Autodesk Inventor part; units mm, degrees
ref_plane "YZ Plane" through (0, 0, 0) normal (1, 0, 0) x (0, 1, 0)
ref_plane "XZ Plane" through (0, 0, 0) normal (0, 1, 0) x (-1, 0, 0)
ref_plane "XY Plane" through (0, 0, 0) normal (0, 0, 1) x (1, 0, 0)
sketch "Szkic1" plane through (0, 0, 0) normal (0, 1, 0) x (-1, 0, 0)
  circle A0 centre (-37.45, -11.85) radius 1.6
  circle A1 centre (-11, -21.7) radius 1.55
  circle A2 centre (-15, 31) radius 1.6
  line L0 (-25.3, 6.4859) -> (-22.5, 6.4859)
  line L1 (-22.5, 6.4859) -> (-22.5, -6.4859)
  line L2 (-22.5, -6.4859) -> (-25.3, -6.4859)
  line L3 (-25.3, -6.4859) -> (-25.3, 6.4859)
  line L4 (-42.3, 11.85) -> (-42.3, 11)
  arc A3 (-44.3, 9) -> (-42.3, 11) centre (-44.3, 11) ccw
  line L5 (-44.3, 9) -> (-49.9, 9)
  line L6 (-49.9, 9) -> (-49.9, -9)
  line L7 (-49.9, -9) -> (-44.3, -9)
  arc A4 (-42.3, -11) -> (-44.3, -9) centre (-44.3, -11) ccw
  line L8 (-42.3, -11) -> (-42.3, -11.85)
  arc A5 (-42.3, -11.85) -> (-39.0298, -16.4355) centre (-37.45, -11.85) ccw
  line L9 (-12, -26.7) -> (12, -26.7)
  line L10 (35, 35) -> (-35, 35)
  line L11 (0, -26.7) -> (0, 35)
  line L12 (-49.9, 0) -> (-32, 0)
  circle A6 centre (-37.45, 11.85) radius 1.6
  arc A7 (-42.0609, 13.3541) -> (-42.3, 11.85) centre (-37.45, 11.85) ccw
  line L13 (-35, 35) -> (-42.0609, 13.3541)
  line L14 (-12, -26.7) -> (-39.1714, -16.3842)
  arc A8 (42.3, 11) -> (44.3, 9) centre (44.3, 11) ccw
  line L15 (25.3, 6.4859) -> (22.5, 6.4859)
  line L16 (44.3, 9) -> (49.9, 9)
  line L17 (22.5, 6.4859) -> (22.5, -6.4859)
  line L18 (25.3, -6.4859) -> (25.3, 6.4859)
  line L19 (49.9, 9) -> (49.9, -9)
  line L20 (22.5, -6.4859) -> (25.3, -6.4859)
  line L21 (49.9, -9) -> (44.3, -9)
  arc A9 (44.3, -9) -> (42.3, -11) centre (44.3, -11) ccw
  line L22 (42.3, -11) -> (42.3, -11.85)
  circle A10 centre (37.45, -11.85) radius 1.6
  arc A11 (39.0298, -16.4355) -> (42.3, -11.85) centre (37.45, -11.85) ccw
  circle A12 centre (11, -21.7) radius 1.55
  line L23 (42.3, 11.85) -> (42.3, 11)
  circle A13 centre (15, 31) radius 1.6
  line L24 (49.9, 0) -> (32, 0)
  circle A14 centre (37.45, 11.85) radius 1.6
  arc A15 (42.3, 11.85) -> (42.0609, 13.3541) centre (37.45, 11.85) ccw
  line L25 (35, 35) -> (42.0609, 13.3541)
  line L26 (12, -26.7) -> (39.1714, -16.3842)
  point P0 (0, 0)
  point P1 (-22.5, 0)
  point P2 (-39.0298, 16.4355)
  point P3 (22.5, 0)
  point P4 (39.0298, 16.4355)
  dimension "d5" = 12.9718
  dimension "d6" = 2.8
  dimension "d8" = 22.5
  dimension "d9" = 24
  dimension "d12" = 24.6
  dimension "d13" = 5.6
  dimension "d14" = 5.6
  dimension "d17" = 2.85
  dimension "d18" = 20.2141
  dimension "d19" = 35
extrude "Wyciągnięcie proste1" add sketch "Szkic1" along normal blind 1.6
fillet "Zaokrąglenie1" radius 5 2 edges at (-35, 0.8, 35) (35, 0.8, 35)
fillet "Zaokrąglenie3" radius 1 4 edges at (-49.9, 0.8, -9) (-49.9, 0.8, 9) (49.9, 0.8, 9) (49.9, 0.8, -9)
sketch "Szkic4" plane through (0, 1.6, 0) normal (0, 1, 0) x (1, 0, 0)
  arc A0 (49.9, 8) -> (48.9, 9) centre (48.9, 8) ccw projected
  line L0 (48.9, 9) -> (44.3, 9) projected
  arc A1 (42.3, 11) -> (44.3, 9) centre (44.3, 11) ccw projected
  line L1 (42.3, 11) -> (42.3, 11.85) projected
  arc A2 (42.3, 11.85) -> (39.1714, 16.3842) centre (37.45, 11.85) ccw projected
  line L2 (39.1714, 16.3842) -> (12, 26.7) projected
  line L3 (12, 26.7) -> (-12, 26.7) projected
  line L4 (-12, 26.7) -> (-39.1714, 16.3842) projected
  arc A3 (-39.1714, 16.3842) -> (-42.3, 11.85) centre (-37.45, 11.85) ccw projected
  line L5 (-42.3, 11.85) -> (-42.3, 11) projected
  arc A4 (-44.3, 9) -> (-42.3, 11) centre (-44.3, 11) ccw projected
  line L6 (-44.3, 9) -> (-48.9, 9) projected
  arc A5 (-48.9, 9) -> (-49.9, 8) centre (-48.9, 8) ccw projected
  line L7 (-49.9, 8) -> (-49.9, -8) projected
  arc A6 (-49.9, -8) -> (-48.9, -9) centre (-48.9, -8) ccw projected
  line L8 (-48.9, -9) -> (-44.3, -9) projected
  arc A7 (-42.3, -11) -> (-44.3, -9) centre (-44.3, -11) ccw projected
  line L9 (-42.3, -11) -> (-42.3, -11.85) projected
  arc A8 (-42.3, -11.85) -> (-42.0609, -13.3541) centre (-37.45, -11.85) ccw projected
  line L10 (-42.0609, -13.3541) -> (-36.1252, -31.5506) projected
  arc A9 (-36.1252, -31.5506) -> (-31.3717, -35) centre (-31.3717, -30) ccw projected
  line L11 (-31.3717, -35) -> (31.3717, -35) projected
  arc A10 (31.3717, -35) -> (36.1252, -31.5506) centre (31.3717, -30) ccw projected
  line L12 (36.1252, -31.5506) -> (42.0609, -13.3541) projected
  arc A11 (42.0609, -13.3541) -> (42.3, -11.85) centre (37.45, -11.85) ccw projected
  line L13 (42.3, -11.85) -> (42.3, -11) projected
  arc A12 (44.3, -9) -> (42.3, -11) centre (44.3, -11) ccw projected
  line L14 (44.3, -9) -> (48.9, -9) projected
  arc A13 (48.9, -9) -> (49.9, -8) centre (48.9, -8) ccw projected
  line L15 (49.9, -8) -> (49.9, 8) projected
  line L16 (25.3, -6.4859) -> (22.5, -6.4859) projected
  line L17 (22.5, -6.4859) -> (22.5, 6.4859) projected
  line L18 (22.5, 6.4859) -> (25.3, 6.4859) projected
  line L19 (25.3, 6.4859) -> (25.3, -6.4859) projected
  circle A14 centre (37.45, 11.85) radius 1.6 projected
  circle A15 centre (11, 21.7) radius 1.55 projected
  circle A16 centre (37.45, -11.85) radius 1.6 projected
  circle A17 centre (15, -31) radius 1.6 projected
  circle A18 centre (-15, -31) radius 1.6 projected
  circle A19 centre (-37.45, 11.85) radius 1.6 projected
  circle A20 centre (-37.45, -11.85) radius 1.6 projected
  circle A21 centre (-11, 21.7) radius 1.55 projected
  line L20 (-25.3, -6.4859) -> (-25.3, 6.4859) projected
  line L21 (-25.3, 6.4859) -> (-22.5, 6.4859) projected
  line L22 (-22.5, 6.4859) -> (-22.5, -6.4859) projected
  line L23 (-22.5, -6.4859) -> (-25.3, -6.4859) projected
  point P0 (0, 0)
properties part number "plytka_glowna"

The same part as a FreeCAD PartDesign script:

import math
import FreeCAD as App
import Part
import Sketcher

V = App.Vector
Q = App.Units.Quantity


def edges_at(feature, points):
    """Names of the edges that pass closest to the given points."""
    edges = feature.Shape.Edges
    near = lambda p: min(range(len(edges)), key=lambda i: edges[i].distToShape(Part.Vertex(*p))[0])
    return sorted({f"Edge{near(p) + 1}" for p in points})


def add_polygon(sketch, points):
    """Adds a closed chain of lines whose ends are joined by coincident constraints."""
    first, n = sketch.GeometryCount, len(points)
    for a, b in zip(points, points[1:] + points[:1]):
        sketch.addGeometry(Part.LineSegment(App.Vector(*a, 0), App.Vector(*b, 0)), False)
    for i in range(n):
        sketch.addConstraint(Sketcher.Constraint("Coincident", first + i, 2, first + (i + 1) % n, 1))

doc = App.newDocument("Part")
body = doc.addObject("PartDesign::Body", "Body")

sketch1 = doc.addObject("Sketcher::SketchObject", "Sketch")
body.addObject(sketch1)
sketch1.AttachmentSupport = (doc.XZ_Plane, [""])
sketch1.MapMode = "FlatFace"
sketch1.addGeometry(Part.ArcOfCircle(Part.Circle(V(37.45, 11.85, 0), V(0, 0, 1), 4.850022), math.radians(0), math.radians(18.0666)), False)
sketch1.addGeometry(Part.LineSegment(V(42.3, 11.85, 0), V(42.3, 11, 0)), False)
sketch1.addGeometry(Part.ArcOfCircle(Part.Circle(V(44.3, 11, 0), V(0, 0, 1), 2), math.radians(180), math.radians(270)), False)
sketch1.addGeometry(Part.LineSegment(V(44.3, 9, 0), V(49.9, 9, 0)), False)
sketch1.addGeometry(Part.LineSegment(V(49.9, 9, 0), V(49.9, -9, 0)), False)
sketch1.addGeometry(Part.LineSegment(V(49.9, -9, 0), V(44.3, -9, 0)), False)
sketch1.addGeometry(Part.ArcOfCircle(Part.Circle(V(44.3, -11, 0), V(0, 0, 1), 2), math.radians(90), math.radians(180)), False)
sketch1.addGeometry(Part.LineSegment(V(42.3, -11, 0), V(42.3, -11.85, 0)), False)
sketch1.addGeometry(Part.ArcOfCircle(Part.Circle(V(37.45, -11.85, 0), V(0, 0, 1), 4.85), math.radians(-69.210834), math.radians(0)), False)
sketch1.addGeometry(Part.LineSegment(V(39.1714, -16.3842, 0), V(12, -26.7, 0)), False)
sketch1.addGeometry(Part.LineSegment(V(12, -26.7, 0), V(-12, -26.7, 0)), False)
sketch1.addGeometry(Part.LineSegment(V(-12, -26.7, 0), V(-39.1714, -16.3842, 0)), False)
sketch1.addGeometry(Part.ArcOfCircle(Part.Circle(V(-37.45, -11.85, 0), V(0, 0, 1), 4.850008), math.radians(180), math.radians(249.210834)), False)
sketch1.addGeometry(Part.LineSegment(V(-42.3, -11.85, 0), V(-42.3, -11, 0)), False)
sketch1.addGeometry(Part.ArcOfCircle(Part.Circle(V(-44.3, -11, 0), V(0, 0, 1), 2), math.radians(0), math.radians(90)), False)
sketch1.addGeometry(Part.LineSegment(V(-44.3, -9, 0), V(-49.9, -9, 0)), False)
sketch1.addGeometry(Part.LineSegment(V(-49.9, -9, 0), V(-49.9, 9, 0)), False)
sketch1.addGeometry(Part.LineSegment(V(-49.9, 9, 0), V(-44.3, 9, 0)), False)
sketch1.addGeometry(Part.ArcOfCircle(Part.Circle(V(-44.3, 11, 0), V(0, 0, 1), 2), math.radians(-90), math.radians(0)), False)
sketch1.addGeometry(Part.LineSegment(V(-42.3, 11, 0), V(-42.3, 11.85, 0)), False)
sketch1.addGeometry(Part.ArcOfCircle(Part.Circle(V(-37.45, 11.85, 0), V(0, 0, 1), 4.85), math.radians(161.9334), math.radians(180)), False)
sketch1.addGeometry(Part.LineSegment(V(-42.0609, 13.3541, 0), V(-35, 35, 0)), False)
sketch1.addGeometry(Part.LineSegment(V(-35, 35, 0), V(35, 35, 0)), False)
sketch1.addGeometry(Part.LineSegment(V(35, 35, 0), V(42.0609, 13.3541, 0)), False)
sketch1.addGeometry(Part.Circle(V(37.45, -11.85, 0), V(0, 0, 1), 1.6), False)
sketch1.addGeometry(Part.Circle(V(11, -21.7, 0), V(0, 0, 1), 1.55), False)
add_polygon(sketch1, [(25.3, -6.4859), (25.3, 6.4859), (22.5, 6.4859), (22.5, -6.4859)])
sketch1.addGeometry(Part.Circle(V(37.45, 11.85, 0), V(0, 0, 1), 1.6), False)
sketch1.addGeometry(Part.Circle(V(15, 31, 0), V(0, 0, 1), 1.6), False)
sketch1.addGeometry(Part.Circle(V(-15, 31, 0), V(0, 0, 1), 1.6), False)
sketch1.addGeometry(Part.Circle(V(-11, -21.7, 0), V(0, 0, 1), 1.55), False)
sketch1.addGeometry(Part.Circle(V(-37.45, -11.85, 0), V(0, 0, 1), 1.6), False)
add_polygon(sketch1, [(-22.5, 6.4859), (-25.3, 6.4859), (-25.3, -6.4859), (-22.5, -6.4859)])
sketch1.addGeometry(Part.Circle(V(-37.45, 11.85, 0), V(0, 0, 1), 1.6), False)
sketch1.addConstraint([
    Sketcher.Constraint("Tangent", 0, 1, 1, 1),
    Sketcher.Constraint("Tangent", 1, 2, 2, 1),
    Sketcher.Constraint("Tangent", 2, 2, 3, 1),
    Sketcher.Constraint("Coincident", 3, 2, 4, 1),
    Sketcher.Constraint("Coincident", 4, 2, 5, 1),
    Sketcher.Constraint("Tangent", 5, 2, 6, 1),
    Sketcher.Constraint("Tangent", 6, 2, 7, 1),
    Sketcher.Constraint("Tangent", 7, 2, 8, 2),
    Sketcher.Constraint("Tangent", 8, 1, 9, 1),
    Sketcher.Constraint("Coincident", 9, 2, 10, 1),
    Sketcher.Constraint("Coincident", 10, 2, 11, 1),
    Sketcher.Constraint("Tangent", 11, 2, 12, 2),
    Sketcher.Constraint("Tangent", 12, 1, 13, 1),
    Sketcher.Constraint("Tangent", 13, 2, 14, 1),
    Sketcher.Constraint("Tangent", 14, 2, 15, 1),
    Sketcher.Constraint("Coincident", 15, 2, 16, 1),
    Sketcher.Constraint("Coincident", 16, 2, 17, 1),
    Sketcher.Constraint("Tangent", 17, 2, 18, 1),
    Sketcher.Constraint("Tangent", 18, 2, 19, 1),
    Sketcher.Constraint("Tangent", 19, 2, 20, 2),
    Sketcher.Constraint("Tangent", 20, 1, 21, 1),
    Sketcher.Constraint("Coincident", 21, 2, 22, 1),
    Sketcher.Constraint("Coincident", 22, 2, 23, 1),
    Sketcher.Constraint("Tangent", 23, 2, 0, 2),
    Sketcher.Constraint("Vertical", 1),
    Sketcher.Constraint("Horizontal", 3),
    Sketcher.Constraint("Vertical", 4),
    Sketcher.Constraint("Horizontal", 5),
    Sketcher.Constraint("Vertical", 7),
    Sketcher.Constraint("Horizontal", 10),
    Sketcher.Constraint("Vertical", 13),
    Sketcher.Constraint("Horizontal", 15),
    Sketcher.Constraint("Vertical", 16),
    Sketcher.Constraint("Horizontal", 17),
    Sketcher.Constraint("Vertical", 19),
    Sketcher.Constraint("Horizontal", 22),
    Sketcher.Constraint("Vertical", 26),
    Sketcher.Constraint("Horizontal", 27),
    Sketcher.Constraint("Vertical", 28),
    Sketcher.Constraint("Horizontal", 29),
    Sketcher.Constraint("Horizontal", 35),
    Sketcher.Constraint("Vertical", 36),
    Sketcher.Constraint("Horizontal", 37),
    Sketcher.Constraint("Vertical", 38),
    Sketcher.Constraint("Coincident", 24, 3, 8, 3),
    Sketcher.Constraint("Coincident", 30, 3, 0, 3),
    Sketcher.Constraint("Coincident", 34, 3, 12, 3),
    Sketcher.Constraint("Coincident", 39, 3, 20, 3),
    Sketcher.Constraint("Equal", 2, 6),
    Sketcher.Constraint("Equal", 0, 8),
    Sketcher.Constraint("Equal", 8, 12),
    Sketcher.Constraint("Equal", 6, 14),
    Sketcher.Constraint("Equal", 14, 18),
    Sketcher.Constraint("Equal", 12, 20),
    Sketcher.Constraint("Equal", 24, 30),
    Sketcher.Constraint("Equal", 30, 31),
    Sketcher.Constraint("Equal", 31, 32),
    Sketcher.Constraint("Equal", 25, 33),
    Sketcher.Constraint("Equal", 32, 34),
    Sketcher.Constraint("Equal", 34, 39),
    Sketcher.Constraint("Symmetric", 0, 3, 12, 3, -1, 1),
    Sketcher.Constraint("Symmetric", 6, 3, 18, 3, -1, 1),
    Sketcher.Constraint("Symmetric", 3, 2, 15, 2, -1, 1),
    Sketcher.Constraint("Symmetric", 29, 2, 35, 2, -1, 1),
    Sketcher.Constraint("Symmetric", 27, 2, 37, 2, -1, 1),
    Sketcher.Constraint("Symmetric", 8, 3, 12, 3, -2),
    Sketcher.Constraint("Symmetric", 31, 3, 32, 3, -2),
    Sketcher.Constraint("Symmetric", 25, 3, 33, 3, -2),
    Sketcher.Constraint("Symmetric", 20, 1, 23, 2, -2),
    Sketcher.Constraint("Horizontal", 6, 3, 14, 3),
    Sketcher.Constraint("Horizontal", 8, 1, 11, 2),
    Sketcher.Constraint("Horizontal", 27, 2, 35, 2),
    Sketcher.Constraint("DistanceX", 10, 2, 10, 1, Q("24 mm")),
    Sketcher.Constraint("DistanceX", 3, 1, 3, 2, Q("5.6 mm")),
    Sketcher.Constraint("DistanceX", 27, 2, 27, 1, Q("2.8 mm")),
    Sketcher.Constraint("DistanceX", 21, 2, -1, 1, Q("35 mm")),
    Sketcher.Constraint("DistanceY", -1, 1, 21, 2, Q("35 mm")),
    Sketcher.Constraint("Radius", 2, Q("2 mm")),
    Sketcher.Constraint("DistanceY", 1, 2, 22, 2, Q("24 mm")),
    Sketcher.Constraint("Diameter", 24, Q("3.2 mm")),
    Sketcher.Constraint("Diameter", 25, Q("3.1 mm")),
    Sketcher.Constraint("DistanceX", -1, 1, 27, 2, Q("22.5 mm")),
    Sketcher.Constraint("Radius", 0, Q("4.85 mm")),
    Sketcher.Constraint("DistanceY", 2, 2, 0, 1, Q("2.85 mm")),
    Sketcher.Constraint("DistanceY", 26, 1, 26, 2, Q("12.9718 mm")),
    Sketcher.Constraint("DistanceX", -1, 1, 25, 3, Q("11 mm")),
    Sketcher.Constraint("DistanceX", -1, 1, 31, 3, Q("15 mm")),
    Sketcher.Constraint("DistanceY", -1, 1, 31, 3, Q("31 mm")),
    Sketcher.Constraint("DistanceY", 9, 2, 25, 3, Q("5 mm")),
    Sketcher.Constraint("DistanceX", 26, 2, 1, 2, Q("17 mm")),
    Sketcher.Constraint("DistanceY", 25, 3, -1, 1, Q("21.7 mm")),
])
pad1 = doc.addObject("PartDesign::Pad", "Pad")
body.addObject(pad1)
pad1.Profile = sketch1
pad1.Length = 1.6
pad1.Reversed = True
doc.recompute()

fillet = doc.addObject("PartDesign::Fillet", "Fillet")
body.addObject(fillet)
fillet.Base = (pad1, edges_at(pad1, [(-35, 0.8, 35), (35, 0.8, 35)]))
fillet.Radius = 5
doc.recompute()

fillet2 = doc.addObject("PartDesign::Fillet", "Fillet001")
body.addObject(fillet2)
fillet2.Base = (fillet, edges_at(fillet, [
    (-49.9, 0.8, -9),
    (-49.9, 0.8, 9),
    (49.9, 0.8, 9),
    (49.9, 0.8, -9),
]))
fillet2.Radius = 1

doc.recompute()
